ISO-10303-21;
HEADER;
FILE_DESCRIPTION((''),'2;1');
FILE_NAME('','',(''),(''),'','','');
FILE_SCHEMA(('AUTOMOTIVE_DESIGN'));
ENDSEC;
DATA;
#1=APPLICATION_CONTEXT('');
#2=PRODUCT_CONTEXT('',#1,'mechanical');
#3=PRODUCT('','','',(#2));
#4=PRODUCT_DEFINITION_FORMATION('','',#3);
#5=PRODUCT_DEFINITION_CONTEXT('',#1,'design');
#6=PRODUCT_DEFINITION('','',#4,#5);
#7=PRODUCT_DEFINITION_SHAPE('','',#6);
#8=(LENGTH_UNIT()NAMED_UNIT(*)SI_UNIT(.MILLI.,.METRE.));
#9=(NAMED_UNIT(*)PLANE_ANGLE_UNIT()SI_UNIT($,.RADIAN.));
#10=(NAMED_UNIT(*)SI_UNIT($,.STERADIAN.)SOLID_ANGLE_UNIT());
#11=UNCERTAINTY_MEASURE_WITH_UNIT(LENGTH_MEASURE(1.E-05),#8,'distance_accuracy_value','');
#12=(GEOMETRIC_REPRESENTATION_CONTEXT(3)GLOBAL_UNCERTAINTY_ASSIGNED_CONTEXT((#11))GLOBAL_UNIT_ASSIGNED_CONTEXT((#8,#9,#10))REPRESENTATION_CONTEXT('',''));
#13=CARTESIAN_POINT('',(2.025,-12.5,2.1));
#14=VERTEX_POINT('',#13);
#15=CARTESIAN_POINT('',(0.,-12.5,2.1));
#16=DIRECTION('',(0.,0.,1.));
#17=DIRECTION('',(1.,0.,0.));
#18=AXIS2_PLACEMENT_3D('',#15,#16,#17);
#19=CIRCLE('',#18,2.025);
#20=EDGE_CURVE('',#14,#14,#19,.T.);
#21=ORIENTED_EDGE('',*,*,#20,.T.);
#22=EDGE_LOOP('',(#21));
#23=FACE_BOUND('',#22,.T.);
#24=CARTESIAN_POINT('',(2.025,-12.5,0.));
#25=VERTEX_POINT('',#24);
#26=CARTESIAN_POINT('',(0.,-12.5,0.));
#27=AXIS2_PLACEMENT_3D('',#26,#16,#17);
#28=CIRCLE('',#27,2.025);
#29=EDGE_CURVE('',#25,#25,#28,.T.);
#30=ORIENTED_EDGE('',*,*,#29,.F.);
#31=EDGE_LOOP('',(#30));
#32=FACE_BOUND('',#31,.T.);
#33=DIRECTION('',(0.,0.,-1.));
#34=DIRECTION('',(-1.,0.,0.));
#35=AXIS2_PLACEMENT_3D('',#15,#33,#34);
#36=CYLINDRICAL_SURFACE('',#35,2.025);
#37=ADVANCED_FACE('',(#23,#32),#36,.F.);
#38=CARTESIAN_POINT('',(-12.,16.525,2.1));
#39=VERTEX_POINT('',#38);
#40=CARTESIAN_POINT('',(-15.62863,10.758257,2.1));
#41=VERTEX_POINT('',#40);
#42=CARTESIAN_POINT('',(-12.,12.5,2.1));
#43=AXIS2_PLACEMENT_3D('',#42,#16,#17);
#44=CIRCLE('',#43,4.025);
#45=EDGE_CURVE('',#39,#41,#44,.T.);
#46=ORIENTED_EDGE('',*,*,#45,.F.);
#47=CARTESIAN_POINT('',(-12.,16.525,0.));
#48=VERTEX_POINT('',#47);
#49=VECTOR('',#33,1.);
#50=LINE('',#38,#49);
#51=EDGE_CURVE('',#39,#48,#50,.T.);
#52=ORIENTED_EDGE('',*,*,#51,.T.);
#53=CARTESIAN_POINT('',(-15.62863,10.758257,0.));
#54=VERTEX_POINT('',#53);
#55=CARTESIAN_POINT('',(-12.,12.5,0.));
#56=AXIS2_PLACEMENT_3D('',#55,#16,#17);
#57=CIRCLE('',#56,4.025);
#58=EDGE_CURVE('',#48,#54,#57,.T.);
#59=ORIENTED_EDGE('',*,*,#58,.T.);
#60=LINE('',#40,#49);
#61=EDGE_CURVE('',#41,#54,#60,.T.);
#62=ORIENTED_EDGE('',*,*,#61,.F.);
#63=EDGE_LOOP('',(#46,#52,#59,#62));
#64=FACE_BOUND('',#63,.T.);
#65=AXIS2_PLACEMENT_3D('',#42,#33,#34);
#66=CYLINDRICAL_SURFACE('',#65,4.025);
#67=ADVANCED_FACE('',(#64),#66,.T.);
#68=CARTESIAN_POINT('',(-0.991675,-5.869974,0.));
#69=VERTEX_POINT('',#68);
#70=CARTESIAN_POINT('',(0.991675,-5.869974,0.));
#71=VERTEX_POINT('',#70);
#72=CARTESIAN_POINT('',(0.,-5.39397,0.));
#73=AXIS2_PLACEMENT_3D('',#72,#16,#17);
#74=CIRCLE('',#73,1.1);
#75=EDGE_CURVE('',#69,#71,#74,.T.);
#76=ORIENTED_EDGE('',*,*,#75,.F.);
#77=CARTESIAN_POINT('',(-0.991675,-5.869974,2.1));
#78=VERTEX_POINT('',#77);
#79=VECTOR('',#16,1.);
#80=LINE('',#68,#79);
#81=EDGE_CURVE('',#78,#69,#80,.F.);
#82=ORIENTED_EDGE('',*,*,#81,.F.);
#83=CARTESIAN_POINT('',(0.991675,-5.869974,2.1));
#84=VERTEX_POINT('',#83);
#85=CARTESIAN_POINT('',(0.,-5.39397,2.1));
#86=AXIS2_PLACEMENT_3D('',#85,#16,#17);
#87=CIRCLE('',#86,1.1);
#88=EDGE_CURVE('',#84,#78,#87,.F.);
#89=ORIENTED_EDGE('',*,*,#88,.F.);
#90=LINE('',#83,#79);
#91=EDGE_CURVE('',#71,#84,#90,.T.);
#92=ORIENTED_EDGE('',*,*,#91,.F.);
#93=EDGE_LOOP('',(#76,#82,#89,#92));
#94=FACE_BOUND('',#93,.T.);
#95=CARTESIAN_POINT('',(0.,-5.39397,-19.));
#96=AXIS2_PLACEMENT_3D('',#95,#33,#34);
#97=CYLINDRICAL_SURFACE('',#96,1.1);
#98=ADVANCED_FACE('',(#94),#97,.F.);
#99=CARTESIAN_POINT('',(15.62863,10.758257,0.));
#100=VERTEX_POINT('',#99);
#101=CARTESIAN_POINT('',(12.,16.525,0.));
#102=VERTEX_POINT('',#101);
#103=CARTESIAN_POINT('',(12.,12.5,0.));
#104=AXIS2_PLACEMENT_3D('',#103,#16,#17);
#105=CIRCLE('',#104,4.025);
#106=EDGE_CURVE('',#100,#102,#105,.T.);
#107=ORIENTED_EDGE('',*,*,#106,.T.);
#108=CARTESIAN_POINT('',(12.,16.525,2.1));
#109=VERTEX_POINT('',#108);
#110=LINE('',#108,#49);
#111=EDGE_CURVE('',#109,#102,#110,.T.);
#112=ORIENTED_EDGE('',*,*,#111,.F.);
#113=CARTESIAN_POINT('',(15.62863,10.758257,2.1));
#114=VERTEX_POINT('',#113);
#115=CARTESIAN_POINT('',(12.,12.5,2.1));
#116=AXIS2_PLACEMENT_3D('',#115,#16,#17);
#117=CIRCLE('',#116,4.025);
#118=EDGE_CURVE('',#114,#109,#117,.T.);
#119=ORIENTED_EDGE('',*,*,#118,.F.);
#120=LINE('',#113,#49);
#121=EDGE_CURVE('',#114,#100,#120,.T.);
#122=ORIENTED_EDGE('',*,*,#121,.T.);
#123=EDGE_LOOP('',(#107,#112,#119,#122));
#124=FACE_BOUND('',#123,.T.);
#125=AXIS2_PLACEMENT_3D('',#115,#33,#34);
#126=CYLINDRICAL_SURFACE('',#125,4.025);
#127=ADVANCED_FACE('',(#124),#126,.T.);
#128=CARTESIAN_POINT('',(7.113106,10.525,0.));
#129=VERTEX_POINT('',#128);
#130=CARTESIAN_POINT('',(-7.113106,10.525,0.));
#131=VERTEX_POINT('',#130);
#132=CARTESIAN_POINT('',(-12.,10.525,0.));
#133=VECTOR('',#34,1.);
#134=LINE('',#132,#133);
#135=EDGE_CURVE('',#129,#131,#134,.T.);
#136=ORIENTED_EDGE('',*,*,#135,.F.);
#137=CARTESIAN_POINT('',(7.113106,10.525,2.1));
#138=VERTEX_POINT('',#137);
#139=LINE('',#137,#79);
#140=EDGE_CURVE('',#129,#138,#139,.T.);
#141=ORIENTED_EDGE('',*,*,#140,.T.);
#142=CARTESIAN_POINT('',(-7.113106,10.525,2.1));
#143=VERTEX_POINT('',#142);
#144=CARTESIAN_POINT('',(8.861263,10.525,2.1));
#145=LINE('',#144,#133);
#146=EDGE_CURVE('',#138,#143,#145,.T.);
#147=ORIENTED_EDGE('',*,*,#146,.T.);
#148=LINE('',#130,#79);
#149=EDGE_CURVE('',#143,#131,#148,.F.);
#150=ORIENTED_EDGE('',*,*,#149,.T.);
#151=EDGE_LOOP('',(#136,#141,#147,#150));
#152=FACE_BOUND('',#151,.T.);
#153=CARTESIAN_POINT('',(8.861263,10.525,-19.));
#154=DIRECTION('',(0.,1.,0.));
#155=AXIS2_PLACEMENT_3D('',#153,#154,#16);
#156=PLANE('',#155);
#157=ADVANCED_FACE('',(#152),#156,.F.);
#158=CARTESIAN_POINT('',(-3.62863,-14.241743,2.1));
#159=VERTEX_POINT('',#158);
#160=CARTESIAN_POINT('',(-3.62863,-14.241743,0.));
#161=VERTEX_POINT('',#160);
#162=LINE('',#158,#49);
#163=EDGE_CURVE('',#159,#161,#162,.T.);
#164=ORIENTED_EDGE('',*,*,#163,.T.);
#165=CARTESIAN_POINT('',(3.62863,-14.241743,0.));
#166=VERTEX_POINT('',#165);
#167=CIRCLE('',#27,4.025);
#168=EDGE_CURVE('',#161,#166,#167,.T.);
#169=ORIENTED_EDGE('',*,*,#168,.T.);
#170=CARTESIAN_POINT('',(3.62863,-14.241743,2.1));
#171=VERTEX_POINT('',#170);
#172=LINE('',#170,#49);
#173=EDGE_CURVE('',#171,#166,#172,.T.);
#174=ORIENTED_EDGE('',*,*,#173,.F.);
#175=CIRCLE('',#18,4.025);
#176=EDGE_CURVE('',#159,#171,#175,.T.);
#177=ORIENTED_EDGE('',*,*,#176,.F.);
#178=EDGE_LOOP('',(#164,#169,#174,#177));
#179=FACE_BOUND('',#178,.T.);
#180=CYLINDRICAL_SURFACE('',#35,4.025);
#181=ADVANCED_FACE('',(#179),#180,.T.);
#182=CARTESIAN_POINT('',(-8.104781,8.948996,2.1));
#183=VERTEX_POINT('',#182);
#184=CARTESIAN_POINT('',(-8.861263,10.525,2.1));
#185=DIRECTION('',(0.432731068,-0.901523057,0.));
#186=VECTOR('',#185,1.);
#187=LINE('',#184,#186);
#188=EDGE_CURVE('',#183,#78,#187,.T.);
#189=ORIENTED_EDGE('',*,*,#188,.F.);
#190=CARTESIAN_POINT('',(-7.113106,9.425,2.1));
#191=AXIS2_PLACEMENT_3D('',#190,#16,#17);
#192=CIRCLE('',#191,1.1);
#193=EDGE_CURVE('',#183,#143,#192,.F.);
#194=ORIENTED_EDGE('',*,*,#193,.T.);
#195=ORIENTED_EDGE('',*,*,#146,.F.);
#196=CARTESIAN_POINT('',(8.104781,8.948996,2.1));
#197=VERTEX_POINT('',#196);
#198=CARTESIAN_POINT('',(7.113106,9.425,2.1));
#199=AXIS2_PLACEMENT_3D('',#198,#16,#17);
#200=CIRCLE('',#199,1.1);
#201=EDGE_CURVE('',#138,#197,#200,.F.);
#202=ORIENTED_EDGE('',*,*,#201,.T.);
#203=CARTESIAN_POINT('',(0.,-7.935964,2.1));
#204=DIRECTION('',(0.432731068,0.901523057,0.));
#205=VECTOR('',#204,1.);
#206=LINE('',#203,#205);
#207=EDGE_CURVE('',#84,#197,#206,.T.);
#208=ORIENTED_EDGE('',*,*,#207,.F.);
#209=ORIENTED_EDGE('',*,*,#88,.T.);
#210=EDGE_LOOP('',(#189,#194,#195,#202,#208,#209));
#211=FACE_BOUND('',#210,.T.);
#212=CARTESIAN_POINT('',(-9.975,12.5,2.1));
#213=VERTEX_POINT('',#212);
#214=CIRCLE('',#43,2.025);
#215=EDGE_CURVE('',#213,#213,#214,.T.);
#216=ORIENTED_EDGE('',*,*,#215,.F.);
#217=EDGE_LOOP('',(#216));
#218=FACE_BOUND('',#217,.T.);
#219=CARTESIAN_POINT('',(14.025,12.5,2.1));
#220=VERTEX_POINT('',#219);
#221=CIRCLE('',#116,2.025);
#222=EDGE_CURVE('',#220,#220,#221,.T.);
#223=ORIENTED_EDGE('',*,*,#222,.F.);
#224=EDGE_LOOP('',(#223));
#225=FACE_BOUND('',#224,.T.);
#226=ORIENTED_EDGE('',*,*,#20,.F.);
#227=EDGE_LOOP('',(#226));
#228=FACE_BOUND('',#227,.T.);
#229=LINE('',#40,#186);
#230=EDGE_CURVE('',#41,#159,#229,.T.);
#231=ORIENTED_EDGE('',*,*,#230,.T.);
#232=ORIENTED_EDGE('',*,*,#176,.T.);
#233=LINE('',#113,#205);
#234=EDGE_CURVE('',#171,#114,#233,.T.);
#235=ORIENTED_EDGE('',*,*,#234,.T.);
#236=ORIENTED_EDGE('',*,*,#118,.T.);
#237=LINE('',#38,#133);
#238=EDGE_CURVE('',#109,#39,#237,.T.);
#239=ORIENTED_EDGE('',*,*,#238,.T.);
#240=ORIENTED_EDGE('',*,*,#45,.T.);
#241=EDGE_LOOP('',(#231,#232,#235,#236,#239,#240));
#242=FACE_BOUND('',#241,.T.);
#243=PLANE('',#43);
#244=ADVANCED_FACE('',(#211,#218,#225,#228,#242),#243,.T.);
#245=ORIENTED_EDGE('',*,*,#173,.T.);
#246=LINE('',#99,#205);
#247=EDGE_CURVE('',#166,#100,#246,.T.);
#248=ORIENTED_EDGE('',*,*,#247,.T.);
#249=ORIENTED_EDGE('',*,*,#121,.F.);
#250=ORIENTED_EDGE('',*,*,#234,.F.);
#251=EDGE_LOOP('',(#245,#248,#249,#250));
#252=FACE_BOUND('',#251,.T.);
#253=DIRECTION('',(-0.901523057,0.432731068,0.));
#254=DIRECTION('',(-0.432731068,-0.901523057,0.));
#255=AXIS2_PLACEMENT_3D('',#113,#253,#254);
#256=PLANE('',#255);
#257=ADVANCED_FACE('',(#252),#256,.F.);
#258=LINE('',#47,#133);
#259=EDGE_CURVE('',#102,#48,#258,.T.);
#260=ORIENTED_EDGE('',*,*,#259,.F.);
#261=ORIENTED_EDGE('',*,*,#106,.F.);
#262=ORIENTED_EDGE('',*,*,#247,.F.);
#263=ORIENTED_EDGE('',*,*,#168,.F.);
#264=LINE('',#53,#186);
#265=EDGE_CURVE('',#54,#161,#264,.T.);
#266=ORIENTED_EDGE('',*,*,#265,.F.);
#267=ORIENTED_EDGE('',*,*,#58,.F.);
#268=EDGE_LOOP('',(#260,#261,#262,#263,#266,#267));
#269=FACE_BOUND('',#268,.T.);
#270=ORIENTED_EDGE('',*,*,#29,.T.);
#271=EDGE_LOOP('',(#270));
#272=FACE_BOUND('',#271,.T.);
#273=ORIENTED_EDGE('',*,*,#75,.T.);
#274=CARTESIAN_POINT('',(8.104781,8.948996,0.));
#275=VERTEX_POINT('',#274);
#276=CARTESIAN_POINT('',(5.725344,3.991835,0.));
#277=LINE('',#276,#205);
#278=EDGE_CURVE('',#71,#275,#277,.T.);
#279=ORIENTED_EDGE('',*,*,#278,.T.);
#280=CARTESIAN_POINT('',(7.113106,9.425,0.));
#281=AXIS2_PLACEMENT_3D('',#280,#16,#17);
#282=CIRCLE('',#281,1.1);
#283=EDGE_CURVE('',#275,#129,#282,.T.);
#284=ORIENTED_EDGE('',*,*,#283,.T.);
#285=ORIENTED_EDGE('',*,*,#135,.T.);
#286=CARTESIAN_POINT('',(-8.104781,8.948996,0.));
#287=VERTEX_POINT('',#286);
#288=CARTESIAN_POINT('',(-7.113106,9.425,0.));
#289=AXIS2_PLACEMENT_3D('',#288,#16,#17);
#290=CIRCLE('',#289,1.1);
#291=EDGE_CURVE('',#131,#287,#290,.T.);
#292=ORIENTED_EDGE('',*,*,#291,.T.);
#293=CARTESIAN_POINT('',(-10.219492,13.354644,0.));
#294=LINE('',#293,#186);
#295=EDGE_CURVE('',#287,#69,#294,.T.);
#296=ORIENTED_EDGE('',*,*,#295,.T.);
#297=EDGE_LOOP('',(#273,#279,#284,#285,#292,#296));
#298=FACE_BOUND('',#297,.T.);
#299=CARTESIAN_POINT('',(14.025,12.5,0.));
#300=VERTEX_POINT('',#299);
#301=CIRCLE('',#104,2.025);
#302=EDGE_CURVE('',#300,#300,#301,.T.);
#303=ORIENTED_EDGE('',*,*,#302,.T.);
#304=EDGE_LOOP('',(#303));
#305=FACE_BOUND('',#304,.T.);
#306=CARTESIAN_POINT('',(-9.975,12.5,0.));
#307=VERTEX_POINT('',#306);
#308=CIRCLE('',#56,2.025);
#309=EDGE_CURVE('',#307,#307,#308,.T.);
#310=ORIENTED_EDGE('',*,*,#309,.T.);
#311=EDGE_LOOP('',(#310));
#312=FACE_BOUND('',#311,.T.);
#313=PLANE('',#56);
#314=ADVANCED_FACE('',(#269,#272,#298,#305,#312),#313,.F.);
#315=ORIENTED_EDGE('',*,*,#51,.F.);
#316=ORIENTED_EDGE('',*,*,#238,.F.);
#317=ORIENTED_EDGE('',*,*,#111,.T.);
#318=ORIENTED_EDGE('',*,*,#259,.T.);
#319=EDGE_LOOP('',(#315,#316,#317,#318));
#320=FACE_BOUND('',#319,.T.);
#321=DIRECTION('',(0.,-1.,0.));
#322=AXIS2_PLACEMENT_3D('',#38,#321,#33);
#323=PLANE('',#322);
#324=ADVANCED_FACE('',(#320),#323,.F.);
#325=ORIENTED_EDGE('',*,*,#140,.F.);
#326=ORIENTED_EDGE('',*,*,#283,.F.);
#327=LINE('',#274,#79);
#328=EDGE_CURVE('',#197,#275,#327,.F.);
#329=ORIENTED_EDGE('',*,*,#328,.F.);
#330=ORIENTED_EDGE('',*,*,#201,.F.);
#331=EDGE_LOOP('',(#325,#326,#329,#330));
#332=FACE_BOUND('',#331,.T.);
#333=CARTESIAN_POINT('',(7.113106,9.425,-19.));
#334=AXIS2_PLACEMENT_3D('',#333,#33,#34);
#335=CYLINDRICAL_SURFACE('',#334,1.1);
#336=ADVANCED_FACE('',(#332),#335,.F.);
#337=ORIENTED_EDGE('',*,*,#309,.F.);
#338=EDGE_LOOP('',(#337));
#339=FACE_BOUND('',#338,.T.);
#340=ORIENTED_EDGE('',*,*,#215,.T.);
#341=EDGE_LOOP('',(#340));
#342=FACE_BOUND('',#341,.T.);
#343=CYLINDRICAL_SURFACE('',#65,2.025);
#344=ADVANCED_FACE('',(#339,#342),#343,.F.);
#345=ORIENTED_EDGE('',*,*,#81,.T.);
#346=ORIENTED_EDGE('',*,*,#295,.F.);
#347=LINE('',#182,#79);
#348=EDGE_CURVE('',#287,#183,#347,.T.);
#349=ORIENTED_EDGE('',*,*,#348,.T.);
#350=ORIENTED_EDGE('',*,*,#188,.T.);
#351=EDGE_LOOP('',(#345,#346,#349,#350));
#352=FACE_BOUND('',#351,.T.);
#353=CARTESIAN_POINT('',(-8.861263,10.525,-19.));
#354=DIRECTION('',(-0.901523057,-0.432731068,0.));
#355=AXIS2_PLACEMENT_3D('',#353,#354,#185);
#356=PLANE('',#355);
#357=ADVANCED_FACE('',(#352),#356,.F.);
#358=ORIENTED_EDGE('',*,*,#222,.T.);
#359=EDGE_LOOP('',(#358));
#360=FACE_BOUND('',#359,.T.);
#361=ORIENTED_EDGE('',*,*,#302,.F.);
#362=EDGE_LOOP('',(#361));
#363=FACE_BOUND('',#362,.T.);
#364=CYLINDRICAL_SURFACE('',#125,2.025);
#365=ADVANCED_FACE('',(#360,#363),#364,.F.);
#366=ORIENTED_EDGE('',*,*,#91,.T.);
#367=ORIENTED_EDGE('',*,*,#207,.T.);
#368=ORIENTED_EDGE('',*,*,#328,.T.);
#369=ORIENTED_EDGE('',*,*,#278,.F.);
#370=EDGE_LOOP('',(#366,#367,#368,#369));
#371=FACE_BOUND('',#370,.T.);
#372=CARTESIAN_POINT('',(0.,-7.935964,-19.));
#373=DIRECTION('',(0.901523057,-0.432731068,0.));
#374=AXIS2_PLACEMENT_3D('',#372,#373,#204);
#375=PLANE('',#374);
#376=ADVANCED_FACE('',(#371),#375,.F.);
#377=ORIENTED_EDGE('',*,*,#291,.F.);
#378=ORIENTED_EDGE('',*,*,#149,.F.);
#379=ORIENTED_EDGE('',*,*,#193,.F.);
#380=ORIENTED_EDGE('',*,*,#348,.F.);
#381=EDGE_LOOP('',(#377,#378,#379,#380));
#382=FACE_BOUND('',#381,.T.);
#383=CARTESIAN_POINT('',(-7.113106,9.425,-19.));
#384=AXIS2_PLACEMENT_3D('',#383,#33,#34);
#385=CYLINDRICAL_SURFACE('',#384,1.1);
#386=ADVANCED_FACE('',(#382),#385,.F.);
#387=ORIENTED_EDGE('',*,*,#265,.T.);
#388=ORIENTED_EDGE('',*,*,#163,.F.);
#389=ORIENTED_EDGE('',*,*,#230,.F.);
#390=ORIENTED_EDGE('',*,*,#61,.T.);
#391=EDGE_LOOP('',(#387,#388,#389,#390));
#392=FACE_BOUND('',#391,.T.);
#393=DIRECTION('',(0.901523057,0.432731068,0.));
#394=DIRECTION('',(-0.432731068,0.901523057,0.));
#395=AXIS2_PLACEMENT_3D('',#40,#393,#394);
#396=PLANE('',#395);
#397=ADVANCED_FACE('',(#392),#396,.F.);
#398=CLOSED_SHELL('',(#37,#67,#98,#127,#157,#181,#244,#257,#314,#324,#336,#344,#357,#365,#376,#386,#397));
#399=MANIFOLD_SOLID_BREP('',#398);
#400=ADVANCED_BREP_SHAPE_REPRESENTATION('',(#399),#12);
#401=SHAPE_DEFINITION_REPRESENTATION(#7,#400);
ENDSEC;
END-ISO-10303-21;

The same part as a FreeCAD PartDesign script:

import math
import FreeCAD as App
import Part
import Sketcher


def edges_at(feature, points):
    """Names of the edges that pass closest to the given points."""
    edges = feature.Shape.Edges
    near = lambda p: min(range(len(edges)), key=lambda i: edges[i].distToShape(Part.Vertex(*p))[0])
    return sorted({f"Edge{near(p) + 1}" for p in points})

doc = App.newDocument("Part")
body = doc.addObject("PartDesign::Body", "Body")

# Sketch on XY plane
sketch1 = doc.addObject("Sketcher::SketchObject", "Sketch")
body.addObject(sketch1)
sketch1.AttachmentSupport = (doc.XY_Plane, [""])
sketch1.MapMode = "FlatFace"
sketch1.addGeometry(Part.LineSegment(App.Vector(12, 16.5, 0), App.Vector(-12, 16.5, 0)), False)
sketch1.addGeometry(Part.ArcOfCircle(Part.Circle(App.Vector(-12, 12.5, 0), App.Vector(0, 0, 1), 4), math.radians(90), math.radians(206)), False)
sketch1.addGeometry(Part.LineSegment(App.Vector(-15.6, 10.8, 0), App.Vector(-3.6, -14.2, 0)), False)
sketch1.addGeometry(Part.ArcOfCircle(Part.Circle(App.Vector(0, -12.5, 0), App.Vector(0, 0, 1), 4), math.radians(-154), math.radians(-26)), False)
sketch1.addGeometry(Part.LineSegment(App.Vector(3.6, -14.2, 0), App.Vector(15.6, 10.8, 0)), False)
sketch1.addGeometry(Part.ArcOfCircle(Part.Circle(App.Vector(12, 12.5, 0), App.Vector(0, 0, 1), 4), math.radians(-26), math.radians(90)), False)
sketch1.addGeometry(Part.Circle(App.Vector(0, -12.5, 0), App.Vector(0, 0, 1), 2), False)
sketch1.addGeometry(Part.Circle(App.Vector(12, 12.5, 0), App.Vector(0, 0, 1), 2), False)
sketch1.addGeometry(Part.Circle(App.Vector(-12, 12.5, 0), App.Vector(0, 0, 1), 2), False)
sketch1.addConstraint(Sketcher.Constraint("Tangent", 0, 2, 1, 1))
sketch1.addConstraint(Sketcher.Constraint("Tangent", 1, 2, 2, 1))
sketch1.addConstraint(Sketcher.Constraint("Tangent", 2, 2, 3, 1))
sketch1.addConstraint(Sketcher.Constraint("Tangent", 3, 2, 4, 1))
sketch1.addConstraint(Sketcher.Constraint("Tangent", 4, 2, 5, 1))
sketch1.addConstraint(Sketcher.Constraint("Tangent", 5, 2, 0, 1))
sketch1.addConstraint(Sketcher.Constraint("Horizontal", 0))
sketch1.addConstraint(Sketcher.Constraint("Coincident", 6, 3, 3, 3))
sketch1.addConstraint(Sketcher.Constraint("Coincident", 7, 3, 5, 3))
sketch1.addConstraint(Sketcher.Constraint("Coincident", 8, 3, 1, 3))
sketch1.addConstraint(Sketcher.Constraint("Equal", 1, 3))
sketch1.addConstraint(Sketcher.Constraint("Equal", 3, 5))
sketch1.addConstraint(Sketcher.Constraint("Equal", 6, 7))
sketch1.addConstraint(Sketcher.Constraint("Equal", 7, 8))
sketch1.addConstraint(Sketcher.Constraint("Symmetric", 2, 2, 3, 2, -2))
sketch1.addConstraint(Sketcher.Constraint("Diameter", 6, 4.05))
sketch1.addConstraint(Sketcher.Constraint("DistanceX", 0, 2, 0, 1, 24.0))
sketch1.addConstraint(Sketcher.Constraint("Radius", 1, 4.025))
sketch1.addConstraint(Sketcher.Constraint("DistanceY", 3, 3, 1, 3, 25.0))
sketch1.addConstraint(Sketcher.Constraint("DistanceY", -1, 1, 1, 3, 12.5))
pad1 = doc.addObject("PartDesign::Pad", "Pad")
body.addObject(pad1)
pad1.Profile = sketch1
pad1.Length = 2.1

# Sketch on XY plane
sketch2 = doc.addObject("Sketcher::SketchObject", "Sketch001")
body.addObject(sketch2)
sketch2.AttachmentSupport = (doc.XY_Plane, [""])
sketch2.MapMode = "FlatFace"
sketch2.AttachmentOffset = App.Placement(App.Vector(0, 0, 2.1), App.Rotation())
sketch2.addGeometry(Part.LineSegment(App.Vector(-9, 11, 0), App.Vector(0, -8, 0)), False)
sketch2.addGeometry(Part.LineSegment(App.Vector(0, -8, 0), App.Vector(9, 11, 0)), False)
sketch2.addGeometry(Part.LineSegment(App.Vector(9, 11, 0), App.Vector(-9, 11, 0)), False)
sketch2.addConstraint(Sketcher.Constraint("Coincident", 0, 2, 1, 1))
sketch2.addConstraint(Sketcher.Constraint("Coincident", 1, 2, 2, 1))
sketch2.addConstraint(Sketcher.Constraint("Coincident", 2, 2, 0, 1))
sketch2.addConstraint(Sketcher.Constraint("Horizontal", 2))
sketch2.addConstraint(Sketcher.Constraint("PointOnObject", 0, 2, -2))
sketch2.addConstraint(Sketcher.Constraint("Equal", 0, 1))
sketch2.addConstraint(Sketcher.Constraint("DistanceY", -1, 1, 1, 2, 10.525))
sketch2.addConstraint(Sketcher.Constraint("Distance", 0, 20.477529))
sketch2.addConstraint(Sketcher.Constraint("DistanceX", 2, 2, 2, 1, 17.722526))
pocket1 = doc.addObject("PartDesign::Pocket", "Pocket")
body.addObject(pocket1)
pocket1.Profile = sketch2
pocket1.Length = 21.1
doc.recompute()

fillet = doc.addObject("PartDesign::Fillet", "Fillet")
body.addObject(fillet)
fillet.Base = (pocket1, edges_at(pocket1, [(-8.861, 10.525, 1.05), (8.861, 10.525, 1.05), (0, -7.936, 1.05)]))
fillet.Radius = 1.1

doc.recompute()
